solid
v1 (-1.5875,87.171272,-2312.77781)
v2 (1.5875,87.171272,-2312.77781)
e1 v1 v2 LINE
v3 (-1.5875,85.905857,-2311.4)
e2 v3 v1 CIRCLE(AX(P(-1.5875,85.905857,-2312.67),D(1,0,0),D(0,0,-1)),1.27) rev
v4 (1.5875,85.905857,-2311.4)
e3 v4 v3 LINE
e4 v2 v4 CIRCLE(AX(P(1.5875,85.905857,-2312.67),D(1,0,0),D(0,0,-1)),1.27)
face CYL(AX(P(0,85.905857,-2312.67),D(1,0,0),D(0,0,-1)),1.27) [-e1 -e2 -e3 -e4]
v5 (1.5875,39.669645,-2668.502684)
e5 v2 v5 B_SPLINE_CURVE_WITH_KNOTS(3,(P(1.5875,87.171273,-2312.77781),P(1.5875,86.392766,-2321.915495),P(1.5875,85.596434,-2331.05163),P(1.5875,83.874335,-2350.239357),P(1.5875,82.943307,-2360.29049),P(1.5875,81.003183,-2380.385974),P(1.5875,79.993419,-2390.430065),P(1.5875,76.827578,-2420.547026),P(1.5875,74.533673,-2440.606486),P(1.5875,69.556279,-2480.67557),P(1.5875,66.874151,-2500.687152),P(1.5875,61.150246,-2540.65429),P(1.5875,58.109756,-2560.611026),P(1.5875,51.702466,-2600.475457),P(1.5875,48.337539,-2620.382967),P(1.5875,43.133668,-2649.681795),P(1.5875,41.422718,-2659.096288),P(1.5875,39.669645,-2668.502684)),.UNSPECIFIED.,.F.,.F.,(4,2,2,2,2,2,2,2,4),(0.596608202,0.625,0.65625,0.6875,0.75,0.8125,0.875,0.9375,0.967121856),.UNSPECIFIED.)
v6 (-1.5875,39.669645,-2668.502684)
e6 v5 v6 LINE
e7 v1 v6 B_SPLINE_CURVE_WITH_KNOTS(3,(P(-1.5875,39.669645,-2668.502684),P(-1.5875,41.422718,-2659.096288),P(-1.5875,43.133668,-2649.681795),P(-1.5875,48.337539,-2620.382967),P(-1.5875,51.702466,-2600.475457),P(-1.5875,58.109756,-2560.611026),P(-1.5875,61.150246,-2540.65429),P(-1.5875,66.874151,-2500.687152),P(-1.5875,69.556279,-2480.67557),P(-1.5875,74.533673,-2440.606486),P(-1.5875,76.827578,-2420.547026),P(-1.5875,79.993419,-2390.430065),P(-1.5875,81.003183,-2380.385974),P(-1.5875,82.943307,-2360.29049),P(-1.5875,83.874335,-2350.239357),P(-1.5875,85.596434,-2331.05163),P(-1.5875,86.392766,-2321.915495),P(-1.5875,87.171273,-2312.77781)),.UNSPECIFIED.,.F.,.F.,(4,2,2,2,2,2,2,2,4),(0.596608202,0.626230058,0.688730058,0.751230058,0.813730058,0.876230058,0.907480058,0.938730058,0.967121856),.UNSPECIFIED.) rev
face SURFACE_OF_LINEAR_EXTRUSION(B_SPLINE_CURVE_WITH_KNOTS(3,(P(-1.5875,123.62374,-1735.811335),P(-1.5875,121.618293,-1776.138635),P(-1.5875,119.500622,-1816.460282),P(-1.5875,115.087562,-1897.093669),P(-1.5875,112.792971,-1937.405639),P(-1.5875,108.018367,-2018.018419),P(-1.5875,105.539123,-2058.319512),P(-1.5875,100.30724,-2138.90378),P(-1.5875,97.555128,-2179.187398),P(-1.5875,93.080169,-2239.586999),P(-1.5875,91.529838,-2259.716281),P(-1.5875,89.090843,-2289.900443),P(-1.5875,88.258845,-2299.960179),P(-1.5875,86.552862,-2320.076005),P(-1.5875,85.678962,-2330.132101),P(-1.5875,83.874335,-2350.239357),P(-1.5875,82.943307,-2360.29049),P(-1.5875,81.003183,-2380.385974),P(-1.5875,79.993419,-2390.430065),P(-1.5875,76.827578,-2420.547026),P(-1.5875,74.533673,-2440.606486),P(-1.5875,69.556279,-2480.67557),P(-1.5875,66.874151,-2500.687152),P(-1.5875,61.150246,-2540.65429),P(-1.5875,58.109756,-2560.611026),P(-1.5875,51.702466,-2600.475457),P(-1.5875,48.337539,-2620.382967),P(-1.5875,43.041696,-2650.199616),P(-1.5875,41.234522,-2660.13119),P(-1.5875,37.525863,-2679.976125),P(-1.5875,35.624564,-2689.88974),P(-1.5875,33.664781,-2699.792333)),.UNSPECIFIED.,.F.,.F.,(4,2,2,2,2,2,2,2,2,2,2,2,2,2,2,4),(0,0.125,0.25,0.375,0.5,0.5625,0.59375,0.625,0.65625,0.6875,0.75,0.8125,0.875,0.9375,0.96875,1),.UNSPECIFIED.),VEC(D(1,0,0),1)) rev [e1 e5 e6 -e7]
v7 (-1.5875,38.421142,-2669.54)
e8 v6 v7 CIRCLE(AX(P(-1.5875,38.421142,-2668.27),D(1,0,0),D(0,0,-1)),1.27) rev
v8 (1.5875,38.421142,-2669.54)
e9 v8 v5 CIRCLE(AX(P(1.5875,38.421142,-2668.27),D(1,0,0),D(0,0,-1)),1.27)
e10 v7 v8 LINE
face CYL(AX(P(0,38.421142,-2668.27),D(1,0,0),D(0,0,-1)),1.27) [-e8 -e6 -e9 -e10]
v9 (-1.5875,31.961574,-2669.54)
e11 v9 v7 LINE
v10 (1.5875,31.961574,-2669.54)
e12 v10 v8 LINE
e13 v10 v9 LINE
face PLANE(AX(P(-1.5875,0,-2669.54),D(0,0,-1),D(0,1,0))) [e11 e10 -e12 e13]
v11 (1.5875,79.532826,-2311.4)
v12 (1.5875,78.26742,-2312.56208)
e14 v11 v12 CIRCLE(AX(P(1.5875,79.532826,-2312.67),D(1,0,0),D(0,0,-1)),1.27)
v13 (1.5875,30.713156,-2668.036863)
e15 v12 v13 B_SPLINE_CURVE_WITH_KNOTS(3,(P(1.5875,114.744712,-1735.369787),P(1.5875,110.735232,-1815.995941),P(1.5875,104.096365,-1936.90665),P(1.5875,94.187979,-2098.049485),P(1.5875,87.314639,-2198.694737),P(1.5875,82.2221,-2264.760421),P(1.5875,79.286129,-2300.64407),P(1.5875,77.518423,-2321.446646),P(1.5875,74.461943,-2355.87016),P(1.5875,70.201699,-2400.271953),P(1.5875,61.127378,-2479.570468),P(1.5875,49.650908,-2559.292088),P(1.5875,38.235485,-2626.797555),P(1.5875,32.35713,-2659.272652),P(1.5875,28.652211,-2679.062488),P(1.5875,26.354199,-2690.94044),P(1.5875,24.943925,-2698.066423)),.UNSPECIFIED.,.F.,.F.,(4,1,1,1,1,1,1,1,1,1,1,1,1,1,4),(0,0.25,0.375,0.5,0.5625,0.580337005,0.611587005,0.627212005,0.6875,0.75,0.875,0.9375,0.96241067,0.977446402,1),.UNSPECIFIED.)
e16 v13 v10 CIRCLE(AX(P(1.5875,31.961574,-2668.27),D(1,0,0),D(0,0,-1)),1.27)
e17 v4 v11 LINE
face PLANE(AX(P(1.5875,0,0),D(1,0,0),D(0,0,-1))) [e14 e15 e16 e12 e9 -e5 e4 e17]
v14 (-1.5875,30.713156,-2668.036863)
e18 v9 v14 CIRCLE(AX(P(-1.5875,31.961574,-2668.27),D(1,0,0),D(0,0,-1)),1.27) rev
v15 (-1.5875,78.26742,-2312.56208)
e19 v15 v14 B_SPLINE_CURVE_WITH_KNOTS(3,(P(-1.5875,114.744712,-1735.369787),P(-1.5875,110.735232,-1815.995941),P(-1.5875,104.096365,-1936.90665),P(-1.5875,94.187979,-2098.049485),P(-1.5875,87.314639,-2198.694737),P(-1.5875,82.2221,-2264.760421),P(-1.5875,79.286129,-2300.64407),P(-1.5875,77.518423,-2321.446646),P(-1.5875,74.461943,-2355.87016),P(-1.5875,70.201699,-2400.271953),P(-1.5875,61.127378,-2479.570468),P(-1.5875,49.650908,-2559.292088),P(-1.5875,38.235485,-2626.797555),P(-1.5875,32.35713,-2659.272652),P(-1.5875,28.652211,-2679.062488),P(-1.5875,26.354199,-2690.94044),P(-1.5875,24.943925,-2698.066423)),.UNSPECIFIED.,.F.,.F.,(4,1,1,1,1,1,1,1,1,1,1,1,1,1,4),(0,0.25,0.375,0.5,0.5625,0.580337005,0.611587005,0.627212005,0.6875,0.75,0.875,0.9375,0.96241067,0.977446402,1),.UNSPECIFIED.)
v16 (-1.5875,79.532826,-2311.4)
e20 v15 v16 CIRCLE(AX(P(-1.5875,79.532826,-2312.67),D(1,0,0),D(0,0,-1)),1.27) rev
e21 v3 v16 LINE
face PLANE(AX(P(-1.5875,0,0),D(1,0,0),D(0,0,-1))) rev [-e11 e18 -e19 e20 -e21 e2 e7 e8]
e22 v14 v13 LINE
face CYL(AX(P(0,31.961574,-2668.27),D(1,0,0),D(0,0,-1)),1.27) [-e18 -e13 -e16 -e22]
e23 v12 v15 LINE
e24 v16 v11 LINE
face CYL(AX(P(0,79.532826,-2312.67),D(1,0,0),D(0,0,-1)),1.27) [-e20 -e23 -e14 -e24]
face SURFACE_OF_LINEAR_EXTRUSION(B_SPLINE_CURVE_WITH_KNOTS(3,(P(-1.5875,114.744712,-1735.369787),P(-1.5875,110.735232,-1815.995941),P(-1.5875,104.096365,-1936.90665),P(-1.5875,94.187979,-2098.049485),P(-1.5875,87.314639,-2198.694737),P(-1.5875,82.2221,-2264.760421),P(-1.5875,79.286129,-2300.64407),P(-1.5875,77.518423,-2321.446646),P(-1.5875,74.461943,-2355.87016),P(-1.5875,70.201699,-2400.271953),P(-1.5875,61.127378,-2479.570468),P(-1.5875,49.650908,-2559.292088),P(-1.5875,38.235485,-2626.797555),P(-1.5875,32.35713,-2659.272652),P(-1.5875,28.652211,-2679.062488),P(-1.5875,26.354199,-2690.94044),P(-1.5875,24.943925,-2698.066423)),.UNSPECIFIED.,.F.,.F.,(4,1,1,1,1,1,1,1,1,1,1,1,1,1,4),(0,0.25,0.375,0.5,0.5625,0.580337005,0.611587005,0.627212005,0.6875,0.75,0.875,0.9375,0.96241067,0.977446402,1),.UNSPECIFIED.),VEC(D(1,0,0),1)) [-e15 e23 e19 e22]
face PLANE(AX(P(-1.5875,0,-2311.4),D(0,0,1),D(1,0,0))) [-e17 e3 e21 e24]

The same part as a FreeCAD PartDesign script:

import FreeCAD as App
import Part
import Sketcher

V = App.Vector
Q = App.Units.Quantity


def edges_at(feature, points):
    """Names of the edges that pass closest to the given points."""
    edges = feature.Shape.Edges
    near = lambda p: min(range(len(edges)), key=lambda i: edges[i].distToShape(Part.Vertex(*p))[0])
    return sorted({f"Edge{near(p) + 1}" for p in points})

doc = App.newDocument("Part")
body = doc.addObject("PartDesign::Body", "Body")

# Sketch on YZ plane
sketch1 = doc.addObject("Sketcher::SketchObject", "Sketch")
body.addObject(sketch1)
sketch1.AttachmentSupport = (doc.YZ_Plane, [""])
sketch1.MapMode = "FlatFace"
sketch1.addGeometry(Part.LineSegment(V(87.288523, -2311.4, 0), V(78.366425, -2311.4, 0)), False)
sketch1.addGeometry(Part.BSplineCurve([V(78.366425, -2311.4, 0), V(77.938966, -2316.422531, 0), V(77.07277, -2326.465798, 0), V(74.461943, -2355.87016, 0), V(70.201699, -2400.271953, 0), V(61.127378, -2479.570468, 0), V(49.650908, -2559.292088, 0), V(38.235485, -2626.797555, 0), V(32.788504, -2656.889519, 0), V(30.877771, -2667.159794, 0), V(30.43207, -2669.54, 0)], [4, 1, 1, 1, 1, 1, 1, 1, 4], [0.595962005, 0.611587005, 0.627212005, 0.6875, 0.75, 0.875, 0.9375, 0.96241067, 0.969928536], False, 3, [1, 1, 1, 1, 1, 1, 1, 1, 1, 1, 1], False), False)
sketch1.addGeometry(Part.LineSegment(V(30.43207, -2669.54, 0), V(39.476142, -2669.54, 0)), False)
sketch1.addGeometry(Part.BSplineCurve([V(87.288523, -2311.4, 0), V(86.472755, -2320.997113, 0), V(85.637637, -2330.592545, 0), V(83.874335, -2350.239357, 0), V(82.943307, -2360.29049, 0), V(81.003183, -2380.385974, 0), V(79.993419, -2390.430065, 0), V(76.827578, -2420.547026, 0), V(74.533673, -2440.606486, 0), V(69.556279, -2480.67557, 0), V(66.874151, -2500.687152, 0), V(61.150246, -2540.65429, 0), V(58.109756, -2560.611026, 0), V(51.702466, -2600.475457, 0), V(48.337539, -2620.382967, 0), V(43.072156, -2650.028117, 0), V(41.296877, -2659.788441, 0), V(39.476142, -2669.54, 0)], [4, 2, 2, 2, 2, 2, 2, 2, 4], [0.595181211, 0.625, 0.65625, 0.6875, 0.75, 0.8125, 0.875, 0.9375, 0.968210768], False, 3, [1, 1, 1, 1, 1, 1, 1, 1, 1, 1, 1, 1, 1, 1, 1, 1, 1, 1], False), False)
sketch1.addConstraint(Sketcher.Constraint("Block", 1))
sketch1.addConstraint(Sketcher.Constraint("Block", 3))
sketch1.addConstraint(Sketcher.Constraint("Coincident", 0, 2, 1, 1))
sketch1.addConstraint(Sketcher.Constraint("Coincident", 1, 2, 2, 1))
sketch1.addConstraint(Sketcher.Constraint("Coincident", 2, 2, 3, 2))
sketch1.addConstraint(Sketcher.Constraint("Coincident", 3, 1, 0, 1))
pad1 = doc.addObject("PartDesign::Pad", "Pad")
body.addObject(pad1)
pad1.Profile = sketch1
pad1.Length = Q("0.125 in")
pad1.Midplane = True
doc.recompute()

fillet = doc.addObject("PartDesign::Fillet", "Fillet")
body.addObject(fillet)
fillet.Base = (pad1, edges_at(pad1, [
    (-0.794, 78.366, -2311.4),
    (-0.794, 87.289, -2311.4),
    (-0.794, 30.432, -2669.54),
    (-0.794, 39.476, -2669.54),
]))
fillet.Radius = Q("0.05 in")

doc.recompute()
